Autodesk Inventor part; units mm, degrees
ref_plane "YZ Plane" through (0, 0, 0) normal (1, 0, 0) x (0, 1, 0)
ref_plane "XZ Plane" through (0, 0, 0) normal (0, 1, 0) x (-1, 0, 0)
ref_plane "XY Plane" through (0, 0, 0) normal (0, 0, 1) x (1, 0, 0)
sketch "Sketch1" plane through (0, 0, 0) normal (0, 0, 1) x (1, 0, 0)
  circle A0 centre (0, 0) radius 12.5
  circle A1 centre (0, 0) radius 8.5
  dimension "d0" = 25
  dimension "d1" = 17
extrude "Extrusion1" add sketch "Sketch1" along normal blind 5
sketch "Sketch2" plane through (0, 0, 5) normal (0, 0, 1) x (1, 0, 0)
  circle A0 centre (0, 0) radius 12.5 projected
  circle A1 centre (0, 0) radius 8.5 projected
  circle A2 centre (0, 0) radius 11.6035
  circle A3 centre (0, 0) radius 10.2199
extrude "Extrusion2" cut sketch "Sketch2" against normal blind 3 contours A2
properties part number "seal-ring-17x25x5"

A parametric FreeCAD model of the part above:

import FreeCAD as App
import Part
import Sketcher

V = App.Vector

doc = App.newDocument("Part")
body = doc.addObject("PartDesign::Body", "Body")

sketch1 = body.newObject("Sketcher::SketchObject", "Sketch")
sketch1.AttachmentSupport = (doc.getObject("XY_Plane"), [""])
sketch1.MapMode = "FlatFace"
sketch1.addGeometry([
    Part.Circle(V(0, 0, 0), V(0, 0, 1), 12),
    Part.Circle(V(0, 0, 0), V(0, 0, 1), 8),
], False)
sketch1.addConstraint([
    Sketcher.Constraint("Coincident", 0, 3, -1, 1),
    Sketcher.Constraint("Coincident", 1, 3, -1, 1),
    Sketcher.Constraint("Diameter", 0, 25.0),
    Sketcher.Constraint("Diameter", 1, 17.0),
])
pad1 = body.newObject("PartDesign::Pad", "Pad")
pad1.Profile = sketch1
pad1.Length = 5

sketch2 = body.newObject("Sketcher::SketchObject", "Sketch001")
sketch2.AttachmentSupport = (doc.getObject("XY_Plane"), [""])
sketch2.MapMode = "FlatFace"
sketch2.AttachmentOffset = App.Placement(V(0, 0, 5), App.Rotation())
sketch2.addGeometry([
    Part.Circle(V(0, 0, 0), V(0, 0, 1), 12),
    Part.Circle(V(0, 0, 0), V(0, 0, 1), 10),
], False)
sketch2.addConstraint([
    Sketcher.Constraint("Coincident", 0, 3, -1, 1),
    Sketcher.Constraint("Coincident", 1, 3, -1, 1),
    Sketcher.Constraint("Diameter", 0, 23.207),
    Sketcher.Constraint("Diameter", 1, 20.4398),
])
pocket1 = body.newObject("PartDesign::Pocket", "Pocket")
pocket1.Profile = sketch2
pocket1.Length = 3

doc.recompute()
